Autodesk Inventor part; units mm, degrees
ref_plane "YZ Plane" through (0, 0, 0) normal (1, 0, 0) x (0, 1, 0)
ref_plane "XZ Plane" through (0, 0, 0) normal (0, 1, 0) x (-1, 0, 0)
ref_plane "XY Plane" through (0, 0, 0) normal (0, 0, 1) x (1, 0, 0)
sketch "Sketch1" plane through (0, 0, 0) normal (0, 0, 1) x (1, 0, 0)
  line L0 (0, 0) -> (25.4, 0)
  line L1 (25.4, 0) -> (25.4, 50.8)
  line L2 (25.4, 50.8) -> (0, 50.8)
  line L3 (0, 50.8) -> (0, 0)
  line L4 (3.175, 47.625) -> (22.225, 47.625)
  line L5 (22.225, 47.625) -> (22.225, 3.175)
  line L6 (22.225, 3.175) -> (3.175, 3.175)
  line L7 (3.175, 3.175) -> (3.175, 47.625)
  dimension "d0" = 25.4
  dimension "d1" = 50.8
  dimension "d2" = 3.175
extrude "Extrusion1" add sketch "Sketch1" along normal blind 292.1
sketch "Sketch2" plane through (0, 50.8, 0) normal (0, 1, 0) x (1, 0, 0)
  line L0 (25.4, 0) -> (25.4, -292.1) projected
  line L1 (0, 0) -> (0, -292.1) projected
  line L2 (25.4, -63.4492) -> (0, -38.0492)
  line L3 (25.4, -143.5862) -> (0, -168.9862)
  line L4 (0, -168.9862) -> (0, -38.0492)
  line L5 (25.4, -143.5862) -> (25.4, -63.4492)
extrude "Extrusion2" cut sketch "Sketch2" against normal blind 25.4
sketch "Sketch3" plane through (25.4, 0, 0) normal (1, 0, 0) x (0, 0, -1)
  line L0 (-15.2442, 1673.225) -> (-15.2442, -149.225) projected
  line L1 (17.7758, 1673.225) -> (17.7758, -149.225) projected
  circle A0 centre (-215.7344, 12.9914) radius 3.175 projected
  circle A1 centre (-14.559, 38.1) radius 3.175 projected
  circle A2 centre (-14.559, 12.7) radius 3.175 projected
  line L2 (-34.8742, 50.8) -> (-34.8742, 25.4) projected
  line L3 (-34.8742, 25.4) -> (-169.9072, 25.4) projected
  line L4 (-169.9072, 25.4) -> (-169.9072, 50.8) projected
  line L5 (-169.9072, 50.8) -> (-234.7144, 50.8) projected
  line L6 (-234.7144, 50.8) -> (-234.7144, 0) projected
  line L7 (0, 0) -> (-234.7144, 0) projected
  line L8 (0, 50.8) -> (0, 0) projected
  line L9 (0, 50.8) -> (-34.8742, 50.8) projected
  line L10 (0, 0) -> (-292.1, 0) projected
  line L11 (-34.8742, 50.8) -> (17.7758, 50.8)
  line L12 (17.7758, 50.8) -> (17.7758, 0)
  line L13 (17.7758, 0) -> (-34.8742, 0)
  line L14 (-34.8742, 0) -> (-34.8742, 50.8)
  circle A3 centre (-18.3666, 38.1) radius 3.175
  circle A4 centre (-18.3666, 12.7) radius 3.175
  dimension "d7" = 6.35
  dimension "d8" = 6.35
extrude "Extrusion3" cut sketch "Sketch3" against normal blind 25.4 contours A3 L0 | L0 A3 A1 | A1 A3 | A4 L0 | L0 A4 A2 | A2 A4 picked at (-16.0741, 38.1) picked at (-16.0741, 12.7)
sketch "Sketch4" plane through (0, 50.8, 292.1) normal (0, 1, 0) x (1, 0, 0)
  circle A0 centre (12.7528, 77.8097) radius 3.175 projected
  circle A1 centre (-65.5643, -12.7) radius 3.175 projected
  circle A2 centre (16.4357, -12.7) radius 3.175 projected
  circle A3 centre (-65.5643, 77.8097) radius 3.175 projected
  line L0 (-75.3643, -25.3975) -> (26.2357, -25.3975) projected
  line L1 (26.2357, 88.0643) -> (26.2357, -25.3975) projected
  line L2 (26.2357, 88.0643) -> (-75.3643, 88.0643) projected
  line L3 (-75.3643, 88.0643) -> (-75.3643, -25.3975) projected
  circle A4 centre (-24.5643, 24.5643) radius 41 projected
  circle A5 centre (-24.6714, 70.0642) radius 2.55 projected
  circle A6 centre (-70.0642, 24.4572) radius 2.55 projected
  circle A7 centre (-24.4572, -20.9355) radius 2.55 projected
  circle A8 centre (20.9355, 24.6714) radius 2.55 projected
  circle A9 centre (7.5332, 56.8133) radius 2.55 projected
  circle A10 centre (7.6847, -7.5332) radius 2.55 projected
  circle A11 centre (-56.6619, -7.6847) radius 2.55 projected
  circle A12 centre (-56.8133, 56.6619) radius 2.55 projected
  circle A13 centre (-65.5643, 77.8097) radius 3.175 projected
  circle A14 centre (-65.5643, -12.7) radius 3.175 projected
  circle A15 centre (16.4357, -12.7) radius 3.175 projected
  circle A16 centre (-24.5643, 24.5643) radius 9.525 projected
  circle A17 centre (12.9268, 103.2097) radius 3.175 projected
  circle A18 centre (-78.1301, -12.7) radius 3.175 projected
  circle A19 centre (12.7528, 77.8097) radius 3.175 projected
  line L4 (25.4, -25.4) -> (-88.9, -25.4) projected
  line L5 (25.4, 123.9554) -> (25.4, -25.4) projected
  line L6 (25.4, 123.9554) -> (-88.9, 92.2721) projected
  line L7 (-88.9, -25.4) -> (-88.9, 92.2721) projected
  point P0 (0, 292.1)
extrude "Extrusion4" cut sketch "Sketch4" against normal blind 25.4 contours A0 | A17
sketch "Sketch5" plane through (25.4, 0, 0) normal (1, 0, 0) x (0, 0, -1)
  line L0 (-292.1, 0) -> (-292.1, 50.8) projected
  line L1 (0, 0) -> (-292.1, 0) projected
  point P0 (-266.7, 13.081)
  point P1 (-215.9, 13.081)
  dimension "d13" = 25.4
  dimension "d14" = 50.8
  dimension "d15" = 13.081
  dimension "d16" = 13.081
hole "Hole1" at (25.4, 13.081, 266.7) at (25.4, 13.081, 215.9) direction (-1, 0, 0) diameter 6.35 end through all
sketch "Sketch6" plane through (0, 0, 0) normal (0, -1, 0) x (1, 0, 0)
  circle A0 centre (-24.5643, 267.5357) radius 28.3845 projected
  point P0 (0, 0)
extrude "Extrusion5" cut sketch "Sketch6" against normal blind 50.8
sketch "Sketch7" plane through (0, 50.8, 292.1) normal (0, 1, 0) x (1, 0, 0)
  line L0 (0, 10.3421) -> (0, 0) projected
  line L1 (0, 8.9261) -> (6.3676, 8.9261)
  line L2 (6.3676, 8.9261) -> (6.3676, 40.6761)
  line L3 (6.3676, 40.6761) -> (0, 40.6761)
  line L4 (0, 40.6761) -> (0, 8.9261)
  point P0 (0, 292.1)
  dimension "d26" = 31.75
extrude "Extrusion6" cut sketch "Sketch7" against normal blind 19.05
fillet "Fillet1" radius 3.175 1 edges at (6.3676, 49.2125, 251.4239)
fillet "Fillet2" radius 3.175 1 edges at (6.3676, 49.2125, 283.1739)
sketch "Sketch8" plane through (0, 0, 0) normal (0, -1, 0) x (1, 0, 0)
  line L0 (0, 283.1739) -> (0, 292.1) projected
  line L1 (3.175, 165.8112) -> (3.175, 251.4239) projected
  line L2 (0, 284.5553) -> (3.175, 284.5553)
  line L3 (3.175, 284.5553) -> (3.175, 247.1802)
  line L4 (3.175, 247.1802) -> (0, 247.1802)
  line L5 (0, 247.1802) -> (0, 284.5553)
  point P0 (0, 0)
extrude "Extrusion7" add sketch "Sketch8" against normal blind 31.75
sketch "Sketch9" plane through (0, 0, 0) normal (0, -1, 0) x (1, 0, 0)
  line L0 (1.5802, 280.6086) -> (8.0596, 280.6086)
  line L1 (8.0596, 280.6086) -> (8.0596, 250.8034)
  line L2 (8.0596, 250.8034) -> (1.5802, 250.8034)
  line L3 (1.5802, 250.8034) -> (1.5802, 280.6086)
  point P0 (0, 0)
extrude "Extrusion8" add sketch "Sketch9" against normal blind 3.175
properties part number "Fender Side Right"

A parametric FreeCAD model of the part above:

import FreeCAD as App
import Part
import Sketcher
Q = App.Units.Quantity


def edges_at(feature, points):
    """Names of the edges that pass closest to the given points."""
    edges = feature.Shape.Edges
    near = lambda p: min(range(len(edges)), key=lambda i: edges[i].distToShape(Part.Vertex(*p))[0])
    return sorted({f"Edge{near(p) + 1}" for p in points})


def add_polygon(sketch, points):
    """Adds a closed chain of lines whose ends are joined by coincident constraints."""
    first, n = sketch.GeometryCount, len(points)
    for a, b in zip(points, points[1:] + points[:1]):
        sketch.addGeometry(Part.LineSegment(App.Vector(*a, 0), App.Vector(*b, 0)), False)
    for i in range(n):
        sketch.addConstraint(Sketcher.Constraint("Coincident", first + i, 2, first + (i + 1) % n, 1))

doc = App.newDocument("Part")
body = doc.addObject("PartDesign::Body", "Body")

# Sketch on XY plane
sketch1 = body.newObject("Sketcher::SketchObject", "Sketch")
sketch1.AttachmentSupport = (doc.getObject("XY_Plane"), [""])
sketch1.MapMode = "FlatFace"
add_polygon(sketch1, [(0, 51), (0, 0), (25, 0), (25, 51)])  # lines 0-3
add_polygon(sketch1, [(3, 3), (3, 48), (22, 48), (22, 3)])  # lines 4-7
sketch1.addConstraint([
    Sketcher.Constraint("Vertical", 0),
    Sketcher.Constraint("Horizontal", 1),
    Sketcher.Constraint("Vertical", 2),
    Sketcher.Constraint("Horizontal", 3),
    Sketcher.Constraint("Vertical", 4),
    Sketcher.Constraint("Horizontal", 5),
    Sketcher.Constraint("Vertical", 6),
    Sketcher.Constraint("Horizontal", 7),
    Sketcher.Constraint("Coincident", 0, 2, -1, 1),
    Sketcher.Constraint("DistanceX", 1, 1, 1, 2, Q("1 in")),
    Sketcher.Constraint("DistanceY", 0, 2, 0, 1, Q("2 in")),
    Sketcher.Constraint("DistanceX", -1, 1, 4, 2, Q("0.125 in")),
    Sketcher.Constraint("DistanceY", -1, 1, 6, 2, Q("0.125 in")),
    Sketcher.Constraint("DistanceY", 4, 2, 3, 2, Q("0.125 in")),
    Sketcher.Constraint("DistanceX", 5, 2, 2, 2, Q("0.125 in")),
])
pad1 = body.newObject("PartDesign::Pad", "Pad")
pad1.Profile = sketch1
pad1.Length = Q("11.5 in")

# Sketch on XZ plane
sketch2 = body.newObject("Sketcher::SketchObject", "Sketch001")
sketch2.AttachmentSupport = (doc.getObject("XZ_Plane"), [""])
sketch2.MapMode = "FlatFace"
sketch2.AttachmentOffset = App.Placement(App.Vector(0, 0, -2 * 25.4), App.Rotation())
add_polygon(sketch2, [(25, 144), (25, 63), (0, 38), (0, 169)])  # lines 0-3
sketch2.addConstraint([
    Sketcher.Constraint("Vertical", 0),
    Sketcher.Constraint("Vertical", 2),
    Sketcher.Constraint("PointOnObject", 1, 2, -2),
    Sketcher.Constraint("Perpendicular", 1, 3),
    Sketcher.Constraint("Equal", 1, 3),
    Sketcher.Constraint("DistanceX", -1, 1, 0, 2, Q("1 in")),
    Sketcher.Constraint("DistanceY", 0, 2, 0, 1, Q("3.155 in")),
    Sketcher.Constraint("DistanceY", -1, 1, 0, 2, Q("2.498 in")),
])
pocket1 = body.newObject("PartDesign::Pocket", "Pocket")
pocket1.Profile = sketch2
pocket1.Length = Q("1 in")
pocket1.Reversed = True

# Sketch on YZ plane
sketch3 = body.newObject("Sketcher::SketchObject", "Sketch002")
sketch3.AttachmentSupport = (doc.getObject("YZ_Plane"), [""])
sketch3.MapMode = "FlatFace"
sketch3.AttachmentOffset = App.Placement(App.Vector(0, 0, 1 * 25.4), App.Rotation())
sketch3.addGeometry([
    Part.Circle(App.Vector(38.1, 18.4, 0), App.Vector(0, 0, 1), 3.2),
    Part.Circle(App.Vector(12.7, 18.4, 0), App.Vector(0, 0, 1), 3.2),
], False)
sketch3.addConstraint([
    Sketcher.Constraint("Equal", 0, 1),
    Sketcher.Constraint("Horizontal", 0, 3, 1, 3),
    Sketcher.Constraint("Diameter", 0, Q("0.25 in")),
    Sketcher.Constraint("DistanceX", 1, 3, 0, 3, Q("1 in")),
    Sketcher.Constraint("DistanceX", -1, 1, 0, 3, Q("1.5 in")),
    Sketcher.Constraint("DistanceY", -1, 1, 0, 3, Q("0.7231 in")),
])
pocket2 = body.newObject("PartDesign::Pocket", "Pocket001")
pocket2.Profile = sketch3
pocket2.Length = Q("1 in")

# Sketch on XZ plane
sketch4 = body.newObject("Sketcher::SketchObject", "Sketch003")
sketch4.AttachmentSupport = (doc.getObject("XZ_Plane"), [""])
sketch4.MapMode = "FlatFace"
sketch4.AttachmentOffset = App.Placement(App.Vector(0, 0, -2 * 25.4), App.Rotation())
sketch4.addGeometry([
    Part.Circle(App.Vector(12.8, 214.3, 0), App.Vector(0, 0, 1), 3.2),
    Part.Circle(App.Vector(12.9, 188.9, 0), App.Vector(0, 0, 1), 3.2),
], False)
sketch4.addConstraint([
    Sketcher.Constraint("Equal", 0, 1),
    Sketcher.Constraint("Diameter", 0, Q("0.25 in")),
    Sketcher.Constraint("DistanceY", 1, 3, 0, 3, Q("1 in")),
    Sketcher.Constraint("DistanceX", -1, 1, 0, 3, Q("12.7528 mm")),
    Sketcher.Constraint("DistanceY", -1, 1, 0, 3, Q("214.2903 mm")),
    Sketcher.Constraint("DistanceX", -1, 1, 1, 3, Q("12.9268 mm")),
])
pocket3 = body.newObject("PartDesign::Pocket", "Pocket002")
pocket3.Profile = sketch4
pocket3.Length = Q("1 in")
pocket3.Reversed = True

# Sketch on YZ plane
sketch5 = body.newObject("Sketcher::SketchObject", "Sketch004")
sketch5.AttachmentSupport = (doc.getObject("YZ_Plane"), [""])
sketch5.MapMode = "FlatFace"
sketch5.AttachmentOffset = App.Placement(App.Vector(0, 0, 1 * 25.4), App.Rotation())
sketch5.addGeometry([
    Part.Circle(App.Vector(13.1, 266.7, 0), App.Vector(0, 0, 1), 3.2),
    Part.Circle(App.Vector(13.1, 215.9, 0), App.Vector(0, 0, 1), 3.2),
], False)
sketch5.addConstraint([
    Sketcher.Constraint("Equal", 0, 1),
    Sketcher.Constraint("Vertical", 0, 3, 1, 3),
    Sketcher.Constraint("Diameter", 0, Q("0.25 in")),
    Sketcher.Constraint("DistanceY", 1, 3, 0, 3, Q("2 in")),
    Sketcher.Constraint("DistanceY", -1, 1, 0, 3, Q("10.5 in")),
    Sketcher.Constraint("DistanceX", -1, 1, 0, 3, Q("0.515 in")),
])
doc.recompute()
hole = body.newObject("PartDesign::Hole", "Hole")
hole.Profile = sketch5
hole.ThreadType = "None"
hole.Diameter = Q("0.25 in")
hole.DepthType = "ThroughAll"

# Sketch on XZ plane
sketch6 = body.newObject("Sketcher::SketchObject", "Sketch005")
sketch6.AttachmentSupport = (doc.getObject("XZ_Plane"), [""])
sketch6.MapMode = "FlatFace"
sketch6.addGeometry(Part.Circle(App.Vector(-25, 268, 0), App.Vector(0, 0, 1), 28), False)
sketch6.addConstraint([
    Sketcher.Constraint("Diameter", 0, Q("2.235 in")),
    Sketcher.Constraint("DistanceX", 0, 3, -1, 1, Q("0.9671 in")),
    Sketcher.Constraint("DistanceY", -1, 1, 0, 3, Q("10.5329 in")),
])
pocket4 = body.newObject("PartDesign::Pocket", "Pocket003")
pocket4.Profile = sketch6
pocket4.Length = Q("2 in")

# Sketch on XZ plane
sketch7 = body.newObject("Sketcher::SketchObject", "Sketch006")
sketch7.AttachmentSupport = (doc.getObject("XZ_Plane"), [""])
sketch7.MapMode = "FlatFace"
sketch7.AttachmentOffset = App.Placement(App.Vector(0, 0, -2 * 25.4), App.Rotation())
add_polygon(sketch7, [(0, 251), (0, 283), (6, 283), (6, 251)])  # lines 0-3
sketch7.addConstraint([
    Sketcher.Constraint("Vertical", 0),
    Sketcher.Constraint("Horizontal", 1),
    Sketcher.Constraint("Vertical", 2),
    Sketcher.Constraint("Horizontal", 3),
    Sketcher.Constraint("PointOnObject", 0, 2, -2),
    Sketcher.Constraint("DistanceY", 0, 1, 0, 2, Q("1.25 in")),
    Sketcher.Constraint("DistanceX", 1, 1, 1, 2, Q("0.2507 in")),
    Sketcher.Constraint("DistanceY", -1, 1, 0, 2, Q("283.174 mm")),
])
pocket5 = body.newObject("PartDesign::Pocket", "Pocket004")
pocket5.Profile = sketch7
pocket5.Length = Q("0.75 in")
pocket5.Reversed = True
doc.recompute()

fillet = body.newObject("PartDesign::Fillet", "Fillet")
fillet.Base = (pocket5, edges_at(pocket5, [(6.368, 49.212, 251.424)]))
fillet.Radius = Q("0.125 in")
doc.recompute()

fillet2 = body.newObject("PartDesign::Fillet", "Fillet001")
fillet2.Base = (fillet, edges_at(fillet, [(6.368, 49.212, 283.174)]))
fillet2.Radius = Q("0.125 in")

# Sketch on XZ plane
sketch8 = body.newObject("Sketcher::SketchObject", "Sketch007")
sketch8.AttachmentSupport = (doc.getObject("XZ_Plane"), [""])
sketch8.MapMode = "FlatFace"
add_polygon(sketch8, [(0, 284.6), (0, 247.2), (3.2, 247.2), (3.2, 284.6)])  # lines 0-3
sketch8.addConstraint([
    Sketcher.Constraint("Vertical", 0),
    Sketcher.Constraint("Horizontal", 1),
    Sketcher.Constraint("Vertical", 2),
    Sketcher.Constraint("Horizontal", 3),
    Sketcher.Constraint("PointOnObject", 0, 2, -2),
    Sketcher.Constraint("DistanceX", 1, 1, 1, 2, Q("0.125 in")),
    Sketcher.Constraint("DistanceY", 0, 2, 0, 1, Q("37.375 mm")),
    Sketcher.Constraint("DistanceY", -1, 1, 0, 2, Q("9.7315 in")),
])
pad2 = body.newObject("PartDesign::Pad", "Pad001")
pad2.Profile = sketch8
pad2.Length = Q("1.25 in")
pad2.Reversed = True

# Sketch on XZ plane
sketch9 = body.newObject("Sketcher::SketchObject", "Sketch008")
sketch9.AttachmentSupport = (doc.getObject("XZ_Plane"), [""])
sketch9.MapMode = "FlatFace"
add_polygon(sketch9, [(8, 281), (2, 281), (2, 251), (8, 251)])  # lines 0-3
sketch9.addConstraint([
    Sketcher.Constraint("Horizontal", 0),
    Sketcher.Constraint("Vertical", 1),
    Sketcher.Constraint("Horizontal", 2),
    Sketcher.Constraint("Vertical", 3),
    Sketcher.Constraint("DistanceX", 0, 2, 0, 1, Q("0.2551 in")),
    Sketcher.Constraint("DistanceY", 1, 2, 1, 1, Q("29.8052 mm")),
    Sketcher.Constraint("DistanceX", -1, 1, 2, 2, Q("0.3173 in")),
    Sketcher.Constraint("DistanceY", -1, 1, 0, 2, Q("280.6086 mm")),
])
pad3 = body.newObject("PartDesign::Pad", "Pad002")
pad3.Profile = sketch9
pad3.Length = Q("0.125 in")
pad3.Reversed = True

doc.recompute()
